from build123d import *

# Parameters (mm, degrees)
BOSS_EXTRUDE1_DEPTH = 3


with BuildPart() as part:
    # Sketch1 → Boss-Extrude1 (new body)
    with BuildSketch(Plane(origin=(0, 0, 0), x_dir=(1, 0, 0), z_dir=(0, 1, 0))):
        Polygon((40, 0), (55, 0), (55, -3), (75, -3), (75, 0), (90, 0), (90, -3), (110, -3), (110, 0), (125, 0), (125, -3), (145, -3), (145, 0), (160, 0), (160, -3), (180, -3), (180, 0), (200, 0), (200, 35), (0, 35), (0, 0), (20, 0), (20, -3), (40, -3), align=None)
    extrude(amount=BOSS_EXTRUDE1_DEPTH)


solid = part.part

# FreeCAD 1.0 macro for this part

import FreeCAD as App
import Part
import Sketcher

V = App.Vector

doc = App.newDocument("Part")
body = doc.addObject("PartDesign::Body", "Body")

# Sketch on XZ plane
sketch1 = body.newObject("Sketcher::SketchObject", "Sketch")
sketch1.AttachmentSupport = (doc.getObject("XZ_Plane"), [""])
sketch1.MapMode = "FlatFace"
sketch1.addGeometry([
    Part.LineSegment(V(40, 0, 0), V(55, 0, 0)),  # 0
    Part.LineSegment(V(55, 0, 0), V(55, 3, 0)),  # 1
    Part.LineSegment(V(55, 3, 0), V(75, 3, 0)),  # 2
    Part.LineSegment(V(75, 3, 0), V(75, 0, 0)),  # 3
    Part.LineSegment(V(75, 0, 0), V(90, 0, 0)),  # 4
    Part.LineSegment(V(90, 0, 0), V(90, 3, 0)),  # 5
    Part.LineSegment(V(90, 3, 0), V(110, 3, 0)),  # 6
    Part.LineSegment(V(110, 3, 0), V(110, 0, 0)),  # 7
    Part.LineSegment(V(110, 0, 0), V(125, 0, 0)),  # 8
    Part.LineSegment(V(125, 0, 0), V(125, 3, 0)),  # 9
    Part.LineSegment(V(125, 3, 0), V(145, 3, 0)),  # 10
    Part.LineSegment(V(145, 3, 0), V(145, 0, 0)),  # 11
    Part.LineSegment(V(145, 0, 0), V(160, 0, 0)),  # 12
    Part.LineSegment(V(160, 0, 0), V(160, 3, 0)),  # 13
    Part.LineSegment(V(160, 3, 0), V(180, 3, 0)),  # 14
    Part.LineSegment(V(180, 3, 0), V(180, 0, 0)),  # 15
    Part.LineSegment(V(180, 0, 0), V(200, 0, 0)),  # 16
    Part.LineSegment(V(200, 0, 0), V(200, -35, 0)),  # 17
    Part.LineSegment(V(200, -35, 0), V(0, -35, 0)),  # 18
    Part.LineSegment(V(0, -35, 0), V(0, 0, 0)),  # 19
    Part.LineSegment(V(0, 0, 0), V(20, 0, 0)),  # 20
    Part.LineSegment(V(20, 0, 0), V(20, 3, 0)),  # 21
    Part.LineSegment(V(20, 3, 0), V(40, 3, 0)),  # 22
    Part.LineSegment(V(40, 3, 0), V(40, 0, 0)),  # 23
], False)
sketch1.addConstraint([
    Sketcher.Constraint("Coincident", 0, 2, 1, 1),
    Sketcher.Constraint("Coincident", 1, 2, 2, 1),
    Sketcher.Constraint("Coincident", 2, 2, 3, 1),
    Sketcher.Constraint("Coincident", 3, 2, 4, 1),
    Sketcher.Constraint("Coincident", 4, 2, 5, 1),
    Sketcher.Constraint("Coincident", 5, 2, 6, 1),
    Sketcher.Constraint("Coincident", 6, 2, 7, 1),
    Sketcher.Constraint("Coincident", 7, 2, 8, 1),
    Sketcher.Constraint("Coincident", 8, 2, 9, 1),
    Sketcher.Constraint("Coincident", 9, 2, 10, 1),
    Sketcher.Constraint("Coincident", 10, 2, 11, 1),
    Sketcher.Constraint("Coincident", 11, 2, 12, 1),
    Sketcher.Constraint("Coincident", 12, 2, 13, 1),
    Sketcher.Constraint("Coincident", 13, 2, 14, 1),
    Sketcher.Constraint("Coincident", 14, 2, 15, 1),
    Sketcher.Constraint("Coincident", 15, 2, 16, 1),
    Sketcher.Constraint("Coincident", 16, 2, 17, 1),
    Sketcher.Constraint("Coincident", 17, 2, 18, 1),
    Sketcher.Constraint("Coincident", 18, 2, 19, 1),
    Sketcher.Constraint("Coincident", 19, 2, 20, 1),
    Sketcher.Constraint("Coincident", 20, 2, 21, 1),
    Sketcher.Constraint("Coincident", 21, 2, 22, 1),
    Sketcher.Constraint("Coincident", 22, 2, 23, 1),
    Sketcher.Constraint("Coincident", 23, 2, 0, 1),
    Sketcher.Constraint("Horizontal", 0),
    Sketcher.Constraint("Vertical", 1),
    Sketcher.Constraint("Horizontal", 2),
    Sketcher.Constraint("Vertical", 3),
    Sketcher.Constraint("Horizontal", 4),
    Sketcher.Constraint("Vertical", 5),
    Sketcher.Constraint("Horizontal", 6),
    Sketcher.Constraint("Vertical", 7),
    Sketcher.Constraint("Horizontal", 8),
    Sketcher.Constraint("Vertical", 9),
    Sketcher.Constraint("Horizontal", 10),
    Sketcher.Constraint("Vertical", 11),
    Sketcher.Constraint("Horizontal", 12),
    Sketcher.Constraint("Vertical", 13),
    Sketcher.Constraint("Horizontal", 14),
    Sketcher.Constraint("Vertical", 15),
    Sketcher.Constraint("Horizontal", 16),
    Sketcher.Constraint("Vertical", 17),
    Sketcher.Constraint("Horizontal", 18),
    Sketcher.Constraint("Vertical", 19),
    Sketcher.Constraint("Horizontal", 20),
    Sketcher.Constraint("Vertical", 21),
    Sketcher.Constraint("Horizontal", 22),
    Sketcher.Constraint("Vertical", 23),
    Sketcher.Constraint("Coincident", 19, 2, -1, 1),
    Sketcher.Constraint("PointOnObject", 0, 2, -1),
    Sketcher.Constraint("PointOnObject", 3, 2, -1),
    Sketcher.Constraint("PointOnObject", 7, 2, -1),
    Sketcher.Constraint("PointOnObject", 11, 2, -1),
    Sketcher.Constraint("PointOnObject", 15, 2, -1),
    Sketcher.Constraint("Horizontal", 2, 2, 5, 2),
    Sketcher.Constraint("Horizontal", 6, 2, 9, 2),
    Sketcher.Constraint("Horizontal", 10, 2, 13, 2),
    Sketcher.Constraint("Horizontal", 14, 2, 21, 2),
    Sketcher.Constraint("Equal", 0, 4),
    Sketcher.Constraint("Equal", 2, 6),
    Sketcher.Constraint("Equal", 4, 8),
    Sketcher.Constraint("Equal", 6, 10),
    Sketcher.Constraint("Equal", 8, 12),
    Sketcher.Constraint("Equal", 10, 14),
    Sketcher.Constraint("Equal", 14, 16),
    Sketcher.Constraint("Equal", 16, 20),
    Sketcher.Constraint("Equal", 20, 22),
    Sketcher.Constraint("DistanceX", 0, 1, 0, 2, 15.0),
    Sketcher.Constraint("DistanceX", 2, 1, 2, 2, 20.0),
    Sketcher.Constraint("DistanceY", 1, 1, 1, 2, 3.0),
    Sketcher.Constraint("DistanceY", 17, 2, 17, 1, 35.0),
])
pad1 = body.newObject("PartDesign::Pad", "Pad")
pad1.Profile = sketch1
pad1.Length = 3
pad1.Reversed = True

doc.recompute()
